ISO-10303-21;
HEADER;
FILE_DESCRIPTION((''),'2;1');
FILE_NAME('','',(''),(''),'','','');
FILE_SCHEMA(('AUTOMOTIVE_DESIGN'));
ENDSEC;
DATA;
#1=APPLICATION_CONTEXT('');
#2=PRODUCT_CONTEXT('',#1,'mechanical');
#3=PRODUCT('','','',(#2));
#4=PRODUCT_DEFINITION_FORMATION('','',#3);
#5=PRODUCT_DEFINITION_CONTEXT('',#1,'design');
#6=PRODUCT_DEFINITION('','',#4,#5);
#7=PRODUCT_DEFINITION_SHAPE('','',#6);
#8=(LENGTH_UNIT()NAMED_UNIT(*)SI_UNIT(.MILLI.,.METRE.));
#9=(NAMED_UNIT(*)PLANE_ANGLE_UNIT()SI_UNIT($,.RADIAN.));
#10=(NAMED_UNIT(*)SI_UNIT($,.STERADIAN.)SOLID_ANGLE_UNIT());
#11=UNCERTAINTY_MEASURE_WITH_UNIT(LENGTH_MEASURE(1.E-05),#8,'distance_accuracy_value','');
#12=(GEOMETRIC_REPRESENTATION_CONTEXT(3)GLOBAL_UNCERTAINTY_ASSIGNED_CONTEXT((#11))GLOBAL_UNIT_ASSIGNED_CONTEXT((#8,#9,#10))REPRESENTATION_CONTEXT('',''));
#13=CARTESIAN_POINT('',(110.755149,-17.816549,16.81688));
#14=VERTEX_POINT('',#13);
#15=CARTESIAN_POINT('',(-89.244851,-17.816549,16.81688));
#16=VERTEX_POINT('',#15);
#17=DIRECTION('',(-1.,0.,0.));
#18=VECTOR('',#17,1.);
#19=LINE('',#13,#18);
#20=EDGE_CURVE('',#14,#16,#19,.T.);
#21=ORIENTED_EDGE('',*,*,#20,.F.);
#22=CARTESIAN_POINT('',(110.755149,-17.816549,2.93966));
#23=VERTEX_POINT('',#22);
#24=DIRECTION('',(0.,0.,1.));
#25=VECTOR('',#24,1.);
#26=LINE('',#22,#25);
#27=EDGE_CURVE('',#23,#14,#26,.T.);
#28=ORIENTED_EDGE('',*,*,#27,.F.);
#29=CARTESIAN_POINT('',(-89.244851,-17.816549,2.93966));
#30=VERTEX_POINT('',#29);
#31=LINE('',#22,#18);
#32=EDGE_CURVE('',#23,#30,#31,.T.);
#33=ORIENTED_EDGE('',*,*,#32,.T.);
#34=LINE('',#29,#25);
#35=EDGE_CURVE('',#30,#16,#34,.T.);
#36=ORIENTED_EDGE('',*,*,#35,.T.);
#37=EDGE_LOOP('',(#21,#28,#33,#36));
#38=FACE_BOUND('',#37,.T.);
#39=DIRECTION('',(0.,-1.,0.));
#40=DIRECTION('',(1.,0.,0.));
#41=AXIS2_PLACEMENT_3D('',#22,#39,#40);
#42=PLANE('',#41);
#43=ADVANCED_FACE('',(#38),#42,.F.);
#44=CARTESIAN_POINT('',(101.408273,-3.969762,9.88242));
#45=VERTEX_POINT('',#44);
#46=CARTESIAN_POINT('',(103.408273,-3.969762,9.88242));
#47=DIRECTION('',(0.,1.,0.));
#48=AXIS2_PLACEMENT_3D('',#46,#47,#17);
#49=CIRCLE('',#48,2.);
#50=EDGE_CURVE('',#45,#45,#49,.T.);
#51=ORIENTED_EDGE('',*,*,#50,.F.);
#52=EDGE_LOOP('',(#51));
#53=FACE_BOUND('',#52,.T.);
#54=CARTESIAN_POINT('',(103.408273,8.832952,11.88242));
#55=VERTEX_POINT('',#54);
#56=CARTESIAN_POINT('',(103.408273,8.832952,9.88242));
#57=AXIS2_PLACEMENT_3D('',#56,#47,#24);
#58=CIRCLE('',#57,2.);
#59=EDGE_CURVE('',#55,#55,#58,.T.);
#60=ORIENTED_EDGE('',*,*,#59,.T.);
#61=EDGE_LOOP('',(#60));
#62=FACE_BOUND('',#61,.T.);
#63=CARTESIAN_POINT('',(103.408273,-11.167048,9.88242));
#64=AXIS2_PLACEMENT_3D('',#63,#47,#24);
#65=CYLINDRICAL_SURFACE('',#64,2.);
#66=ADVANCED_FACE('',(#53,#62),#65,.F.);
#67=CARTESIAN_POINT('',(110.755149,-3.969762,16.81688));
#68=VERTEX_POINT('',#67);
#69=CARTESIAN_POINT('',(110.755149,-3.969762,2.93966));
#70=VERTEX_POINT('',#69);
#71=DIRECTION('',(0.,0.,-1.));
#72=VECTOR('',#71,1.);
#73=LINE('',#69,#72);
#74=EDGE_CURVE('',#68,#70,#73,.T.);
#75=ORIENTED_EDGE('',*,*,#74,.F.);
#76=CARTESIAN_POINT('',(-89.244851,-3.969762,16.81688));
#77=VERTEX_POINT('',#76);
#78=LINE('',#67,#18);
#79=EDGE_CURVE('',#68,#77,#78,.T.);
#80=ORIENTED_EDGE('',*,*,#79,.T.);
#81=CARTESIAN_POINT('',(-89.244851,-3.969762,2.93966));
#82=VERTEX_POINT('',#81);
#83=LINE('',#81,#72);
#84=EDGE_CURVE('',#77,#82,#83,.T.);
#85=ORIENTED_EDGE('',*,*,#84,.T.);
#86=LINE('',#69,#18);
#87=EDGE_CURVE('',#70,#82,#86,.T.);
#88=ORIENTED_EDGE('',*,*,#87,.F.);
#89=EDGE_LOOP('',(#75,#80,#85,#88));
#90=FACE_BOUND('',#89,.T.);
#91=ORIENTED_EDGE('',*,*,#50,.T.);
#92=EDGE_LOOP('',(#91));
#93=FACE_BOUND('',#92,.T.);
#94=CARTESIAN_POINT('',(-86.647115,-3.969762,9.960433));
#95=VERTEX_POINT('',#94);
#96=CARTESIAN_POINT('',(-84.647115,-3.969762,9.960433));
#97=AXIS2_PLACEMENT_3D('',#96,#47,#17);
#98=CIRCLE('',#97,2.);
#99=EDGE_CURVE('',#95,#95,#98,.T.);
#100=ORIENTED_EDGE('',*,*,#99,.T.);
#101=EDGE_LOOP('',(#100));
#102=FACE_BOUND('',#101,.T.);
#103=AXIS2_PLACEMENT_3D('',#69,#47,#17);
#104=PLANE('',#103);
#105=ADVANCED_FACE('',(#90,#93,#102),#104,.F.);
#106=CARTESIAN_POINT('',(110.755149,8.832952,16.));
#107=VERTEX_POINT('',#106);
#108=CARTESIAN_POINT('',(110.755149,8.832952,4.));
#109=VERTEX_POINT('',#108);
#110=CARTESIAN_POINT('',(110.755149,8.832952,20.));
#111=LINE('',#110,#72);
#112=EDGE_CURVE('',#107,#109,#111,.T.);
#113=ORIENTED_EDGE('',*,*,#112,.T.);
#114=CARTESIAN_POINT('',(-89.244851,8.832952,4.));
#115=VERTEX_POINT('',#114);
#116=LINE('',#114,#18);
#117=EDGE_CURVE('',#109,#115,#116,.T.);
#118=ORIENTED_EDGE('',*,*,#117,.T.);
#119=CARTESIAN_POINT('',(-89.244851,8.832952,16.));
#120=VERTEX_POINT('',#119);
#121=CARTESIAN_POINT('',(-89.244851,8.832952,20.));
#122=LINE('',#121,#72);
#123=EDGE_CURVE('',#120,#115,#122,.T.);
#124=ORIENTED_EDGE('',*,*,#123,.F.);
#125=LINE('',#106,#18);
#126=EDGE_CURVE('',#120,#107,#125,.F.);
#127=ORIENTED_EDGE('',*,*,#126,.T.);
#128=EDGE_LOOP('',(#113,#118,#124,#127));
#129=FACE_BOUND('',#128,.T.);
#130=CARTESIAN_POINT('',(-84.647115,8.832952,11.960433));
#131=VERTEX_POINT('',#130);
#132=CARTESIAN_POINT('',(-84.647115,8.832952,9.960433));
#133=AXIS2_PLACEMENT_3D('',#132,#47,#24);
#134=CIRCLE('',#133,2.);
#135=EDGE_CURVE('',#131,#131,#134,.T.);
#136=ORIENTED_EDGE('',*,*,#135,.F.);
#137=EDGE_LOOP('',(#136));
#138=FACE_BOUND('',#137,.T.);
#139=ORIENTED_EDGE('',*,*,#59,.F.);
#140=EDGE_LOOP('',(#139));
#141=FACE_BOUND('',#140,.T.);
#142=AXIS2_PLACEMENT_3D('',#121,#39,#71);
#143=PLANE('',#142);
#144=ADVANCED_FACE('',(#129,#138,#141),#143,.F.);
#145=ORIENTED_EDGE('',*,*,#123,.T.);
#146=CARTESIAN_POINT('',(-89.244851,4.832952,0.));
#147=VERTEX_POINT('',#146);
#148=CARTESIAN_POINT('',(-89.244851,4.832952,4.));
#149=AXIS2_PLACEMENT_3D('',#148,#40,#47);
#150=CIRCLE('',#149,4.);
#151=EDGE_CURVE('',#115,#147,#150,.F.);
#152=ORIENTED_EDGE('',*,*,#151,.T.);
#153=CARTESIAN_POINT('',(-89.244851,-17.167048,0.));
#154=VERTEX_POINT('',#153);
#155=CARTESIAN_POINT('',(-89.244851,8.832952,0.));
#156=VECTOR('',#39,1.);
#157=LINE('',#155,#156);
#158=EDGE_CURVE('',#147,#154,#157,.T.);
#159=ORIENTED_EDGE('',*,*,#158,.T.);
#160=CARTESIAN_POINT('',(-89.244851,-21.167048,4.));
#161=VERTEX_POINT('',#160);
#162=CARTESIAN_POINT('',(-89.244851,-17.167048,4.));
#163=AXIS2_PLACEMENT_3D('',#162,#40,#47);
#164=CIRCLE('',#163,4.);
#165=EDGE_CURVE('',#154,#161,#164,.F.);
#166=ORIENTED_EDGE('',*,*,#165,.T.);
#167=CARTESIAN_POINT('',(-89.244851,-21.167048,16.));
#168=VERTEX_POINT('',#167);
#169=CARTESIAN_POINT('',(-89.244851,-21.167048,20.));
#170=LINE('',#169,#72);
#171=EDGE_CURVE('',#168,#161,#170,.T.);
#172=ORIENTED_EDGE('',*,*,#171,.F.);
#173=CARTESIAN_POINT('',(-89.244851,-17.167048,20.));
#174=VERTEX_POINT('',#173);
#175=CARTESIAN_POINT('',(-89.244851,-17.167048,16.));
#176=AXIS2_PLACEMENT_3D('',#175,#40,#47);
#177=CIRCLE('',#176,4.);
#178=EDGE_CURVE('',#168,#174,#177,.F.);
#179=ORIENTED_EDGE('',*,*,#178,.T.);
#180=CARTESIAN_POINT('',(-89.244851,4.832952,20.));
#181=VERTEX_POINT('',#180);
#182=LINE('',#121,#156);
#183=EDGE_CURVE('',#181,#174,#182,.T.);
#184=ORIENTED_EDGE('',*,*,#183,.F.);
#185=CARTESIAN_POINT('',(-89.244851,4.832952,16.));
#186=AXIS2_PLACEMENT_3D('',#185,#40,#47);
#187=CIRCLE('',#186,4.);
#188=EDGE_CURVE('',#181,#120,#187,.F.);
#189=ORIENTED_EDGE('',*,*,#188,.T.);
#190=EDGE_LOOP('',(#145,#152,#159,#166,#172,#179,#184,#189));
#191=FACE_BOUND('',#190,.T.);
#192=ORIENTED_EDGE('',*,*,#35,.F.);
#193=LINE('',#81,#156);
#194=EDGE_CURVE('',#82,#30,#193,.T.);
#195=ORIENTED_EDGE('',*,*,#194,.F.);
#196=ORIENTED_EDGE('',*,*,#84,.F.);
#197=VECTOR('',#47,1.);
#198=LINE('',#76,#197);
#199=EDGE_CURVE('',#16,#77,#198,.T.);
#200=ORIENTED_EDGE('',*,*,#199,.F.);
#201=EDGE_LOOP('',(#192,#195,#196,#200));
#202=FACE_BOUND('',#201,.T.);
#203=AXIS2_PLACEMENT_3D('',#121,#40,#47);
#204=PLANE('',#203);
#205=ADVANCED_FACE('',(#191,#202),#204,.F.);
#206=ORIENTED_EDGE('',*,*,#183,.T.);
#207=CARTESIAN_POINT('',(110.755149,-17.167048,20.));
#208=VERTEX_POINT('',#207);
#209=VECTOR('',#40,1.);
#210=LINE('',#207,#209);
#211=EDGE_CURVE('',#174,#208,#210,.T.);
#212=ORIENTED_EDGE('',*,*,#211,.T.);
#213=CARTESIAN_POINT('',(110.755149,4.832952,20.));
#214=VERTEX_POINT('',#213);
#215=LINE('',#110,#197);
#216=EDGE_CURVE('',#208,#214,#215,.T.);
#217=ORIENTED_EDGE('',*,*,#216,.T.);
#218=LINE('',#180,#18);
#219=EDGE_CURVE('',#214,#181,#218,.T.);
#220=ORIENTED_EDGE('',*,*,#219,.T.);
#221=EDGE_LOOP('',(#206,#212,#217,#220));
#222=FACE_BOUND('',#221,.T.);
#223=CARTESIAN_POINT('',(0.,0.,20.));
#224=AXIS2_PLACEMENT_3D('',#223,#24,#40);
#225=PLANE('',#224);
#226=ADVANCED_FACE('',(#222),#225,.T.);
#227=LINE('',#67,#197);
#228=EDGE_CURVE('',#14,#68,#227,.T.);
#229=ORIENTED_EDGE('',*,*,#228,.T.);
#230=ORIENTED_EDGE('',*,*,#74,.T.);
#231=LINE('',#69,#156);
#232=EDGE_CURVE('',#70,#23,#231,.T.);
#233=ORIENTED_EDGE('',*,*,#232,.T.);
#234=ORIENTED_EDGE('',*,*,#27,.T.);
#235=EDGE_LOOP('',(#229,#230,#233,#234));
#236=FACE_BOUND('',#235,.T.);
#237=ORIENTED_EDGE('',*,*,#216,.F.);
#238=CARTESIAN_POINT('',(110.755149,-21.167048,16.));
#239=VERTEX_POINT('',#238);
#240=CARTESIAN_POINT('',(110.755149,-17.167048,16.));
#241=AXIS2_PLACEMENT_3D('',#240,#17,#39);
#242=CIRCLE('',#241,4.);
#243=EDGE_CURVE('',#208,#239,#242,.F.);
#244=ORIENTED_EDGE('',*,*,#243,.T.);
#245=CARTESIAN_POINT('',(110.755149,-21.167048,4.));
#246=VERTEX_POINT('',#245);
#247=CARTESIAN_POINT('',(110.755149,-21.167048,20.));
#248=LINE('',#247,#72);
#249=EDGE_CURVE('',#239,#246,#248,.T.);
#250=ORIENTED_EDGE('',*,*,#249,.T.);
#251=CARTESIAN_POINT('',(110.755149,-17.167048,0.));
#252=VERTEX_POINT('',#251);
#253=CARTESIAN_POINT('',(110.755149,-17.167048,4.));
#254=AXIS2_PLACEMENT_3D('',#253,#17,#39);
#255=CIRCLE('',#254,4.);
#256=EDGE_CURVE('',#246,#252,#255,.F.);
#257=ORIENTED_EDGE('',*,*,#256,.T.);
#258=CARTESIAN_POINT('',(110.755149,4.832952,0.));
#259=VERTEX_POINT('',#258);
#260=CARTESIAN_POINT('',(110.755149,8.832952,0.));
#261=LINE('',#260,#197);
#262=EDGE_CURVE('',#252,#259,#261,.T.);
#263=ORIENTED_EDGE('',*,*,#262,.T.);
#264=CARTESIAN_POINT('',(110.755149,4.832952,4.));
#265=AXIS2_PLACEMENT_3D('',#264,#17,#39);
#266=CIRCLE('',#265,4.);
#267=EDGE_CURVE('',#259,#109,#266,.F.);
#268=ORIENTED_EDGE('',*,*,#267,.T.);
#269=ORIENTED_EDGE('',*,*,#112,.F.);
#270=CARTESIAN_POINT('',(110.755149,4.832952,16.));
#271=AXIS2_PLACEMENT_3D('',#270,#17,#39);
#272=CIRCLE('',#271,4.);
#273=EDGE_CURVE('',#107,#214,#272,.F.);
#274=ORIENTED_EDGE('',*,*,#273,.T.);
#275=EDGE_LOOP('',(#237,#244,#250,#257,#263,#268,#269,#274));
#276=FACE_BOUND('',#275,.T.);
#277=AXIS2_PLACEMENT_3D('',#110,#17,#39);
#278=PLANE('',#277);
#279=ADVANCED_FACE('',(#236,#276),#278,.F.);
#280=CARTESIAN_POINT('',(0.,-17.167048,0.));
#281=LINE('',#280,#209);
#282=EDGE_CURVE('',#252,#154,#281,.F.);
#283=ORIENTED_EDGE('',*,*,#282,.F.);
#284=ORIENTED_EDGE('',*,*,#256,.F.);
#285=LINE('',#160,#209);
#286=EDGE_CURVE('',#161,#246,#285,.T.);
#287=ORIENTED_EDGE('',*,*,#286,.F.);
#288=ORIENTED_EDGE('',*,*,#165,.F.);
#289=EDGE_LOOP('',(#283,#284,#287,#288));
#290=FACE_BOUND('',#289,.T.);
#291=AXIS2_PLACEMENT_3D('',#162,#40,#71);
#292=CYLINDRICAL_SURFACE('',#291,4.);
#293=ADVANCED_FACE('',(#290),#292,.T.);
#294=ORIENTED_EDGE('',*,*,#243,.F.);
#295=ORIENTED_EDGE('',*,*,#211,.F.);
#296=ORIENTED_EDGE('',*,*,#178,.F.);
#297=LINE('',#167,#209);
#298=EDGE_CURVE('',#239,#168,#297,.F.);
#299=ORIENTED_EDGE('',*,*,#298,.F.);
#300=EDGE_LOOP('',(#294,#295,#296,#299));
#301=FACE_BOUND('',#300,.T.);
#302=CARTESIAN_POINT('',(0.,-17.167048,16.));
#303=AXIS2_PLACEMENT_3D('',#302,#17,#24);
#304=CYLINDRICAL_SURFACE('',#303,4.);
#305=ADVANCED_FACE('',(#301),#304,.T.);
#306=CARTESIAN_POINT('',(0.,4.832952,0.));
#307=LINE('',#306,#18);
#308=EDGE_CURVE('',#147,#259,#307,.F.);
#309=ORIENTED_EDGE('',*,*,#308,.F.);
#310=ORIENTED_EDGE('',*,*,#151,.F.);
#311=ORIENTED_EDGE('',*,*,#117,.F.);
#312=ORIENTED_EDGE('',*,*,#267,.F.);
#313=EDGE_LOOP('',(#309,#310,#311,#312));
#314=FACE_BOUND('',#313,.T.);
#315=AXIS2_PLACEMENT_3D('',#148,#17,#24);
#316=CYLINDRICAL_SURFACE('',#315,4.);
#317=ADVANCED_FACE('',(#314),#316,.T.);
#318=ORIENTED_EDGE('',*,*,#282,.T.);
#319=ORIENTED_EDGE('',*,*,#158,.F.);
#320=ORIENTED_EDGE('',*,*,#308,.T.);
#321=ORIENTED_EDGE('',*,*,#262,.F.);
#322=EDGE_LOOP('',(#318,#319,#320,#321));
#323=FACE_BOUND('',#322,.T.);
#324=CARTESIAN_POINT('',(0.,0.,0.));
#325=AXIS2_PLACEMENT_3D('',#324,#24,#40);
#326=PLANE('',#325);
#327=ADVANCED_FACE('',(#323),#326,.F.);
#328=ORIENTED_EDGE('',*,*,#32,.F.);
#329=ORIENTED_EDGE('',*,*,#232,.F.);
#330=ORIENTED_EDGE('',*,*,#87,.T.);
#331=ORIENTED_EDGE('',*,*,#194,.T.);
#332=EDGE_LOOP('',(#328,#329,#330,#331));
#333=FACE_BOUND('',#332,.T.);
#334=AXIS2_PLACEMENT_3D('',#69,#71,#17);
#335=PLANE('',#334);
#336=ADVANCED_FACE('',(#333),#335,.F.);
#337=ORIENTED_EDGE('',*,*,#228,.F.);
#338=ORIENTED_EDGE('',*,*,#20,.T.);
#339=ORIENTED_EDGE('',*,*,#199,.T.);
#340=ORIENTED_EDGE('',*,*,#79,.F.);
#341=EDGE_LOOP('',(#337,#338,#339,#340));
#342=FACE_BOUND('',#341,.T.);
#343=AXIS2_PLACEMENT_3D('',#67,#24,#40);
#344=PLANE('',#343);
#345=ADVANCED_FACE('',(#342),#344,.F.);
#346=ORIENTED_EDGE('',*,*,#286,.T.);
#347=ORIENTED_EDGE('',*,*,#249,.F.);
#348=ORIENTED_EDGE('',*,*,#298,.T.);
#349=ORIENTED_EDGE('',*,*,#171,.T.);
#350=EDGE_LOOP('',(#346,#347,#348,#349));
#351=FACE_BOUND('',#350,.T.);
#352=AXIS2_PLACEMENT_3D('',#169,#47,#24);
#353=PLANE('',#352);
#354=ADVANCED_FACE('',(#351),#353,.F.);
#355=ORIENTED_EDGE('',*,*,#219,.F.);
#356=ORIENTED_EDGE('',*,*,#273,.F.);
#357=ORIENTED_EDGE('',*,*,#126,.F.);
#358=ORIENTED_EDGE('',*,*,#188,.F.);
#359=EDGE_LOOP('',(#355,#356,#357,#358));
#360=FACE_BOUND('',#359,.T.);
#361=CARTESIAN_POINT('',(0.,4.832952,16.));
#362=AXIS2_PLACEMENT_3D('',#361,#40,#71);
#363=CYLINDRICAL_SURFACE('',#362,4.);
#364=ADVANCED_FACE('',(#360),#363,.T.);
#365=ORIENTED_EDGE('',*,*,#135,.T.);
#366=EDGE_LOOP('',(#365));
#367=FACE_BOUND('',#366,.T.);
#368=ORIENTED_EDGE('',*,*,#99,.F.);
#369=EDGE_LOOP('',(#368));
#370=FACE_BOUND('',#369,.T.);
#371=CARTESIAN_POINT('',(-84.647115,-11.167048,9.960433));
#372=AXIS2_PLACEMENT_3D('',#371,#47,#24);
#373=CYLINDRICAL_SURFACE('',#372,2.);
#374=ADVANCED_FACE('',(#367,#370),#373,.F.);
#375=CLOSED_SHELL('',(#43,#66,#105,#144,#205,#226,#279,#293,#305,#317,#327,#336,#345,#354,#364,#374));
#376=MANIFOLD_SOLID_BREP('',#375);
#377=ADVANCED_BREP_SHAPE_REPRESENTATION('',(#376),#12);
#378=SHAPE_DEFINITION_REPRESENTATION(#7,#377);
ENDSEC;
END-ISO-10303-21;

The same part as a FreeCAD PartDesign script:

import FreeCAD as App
import Part
import Sketcher
from FreeCAD import Vector
Q = App.Units.Quantity


def edges_at(feature, points):
    """Names of the edges that pass closest to the given points."""
    edges = feature.Shape.Edges
    near = lambda p: min(range(len(edges)), key=lambda i: edges[i].distToShape(Part.Vertex(*p))[0])
    return sorted({f"Edge{near(p) + 1}" for p in points})


def add_polygon(sketch, points):
    """Adds a closed chain of lines whose ends are joined by coincident constraints."""
    first, n = sketch.GeometryCount, len(points)
    for a, b in zip(points, points[1:] + points[:1]):
        sketch.addGeometry(Part.LineSegment(App.Vector(*a, 0), App.Vector(*b, 0)), False)
    for i in range(n):
        sketch.addConstraint(Sketcher.Constraint("Coincident", first + i, 2, first + (i + 1) % n, 1))

doc = App.newDocument("Part")
body = doc.addObject("PartDesign::Body", "Body")

# Sketch on XY plane
sketch1 = body.newObject("Sketcher::SketchObject", "Sketch")
sketch1.AttachmentSupport = (doc.getObject("XY_Plane"), [""])
sketch1.MapMode = "FlatFace"
add_polygon(sketch1, [(-89, 9), (-89, -21), (111, -21), (111, 9)])  # lines 0-3
sketch1.addConstraint([
    Sketcher.Constraint("Vertical", 0),
    Sketcher.Constraint("Horizontal", 1),
    Sketcher.Constraint("Vertical", 2),
    Sketcher.Constraint("Horizontal", 3),
    Sketcher.Constraint("DistanceX", 1, 1, 1, 2, Q("200 mm")),
    Sketcher.Constraint("DistanceY", 0, 2, 0, 1, Q("30 mm")),
    Sketcher.Constraint("DistanceX", 0, 2, -1, 1, Q("89.244851 mm")),
    Sketcher.Constraint("DistanceY", 0, 2, -1, 1, Q("21.167048 mm")),
])
pad1 = body.newObject("PartDesign::Pad", "Pad")
pad1.Profile = sketch1
pad1.Length = 20
doc.recompute()

fillet = body.newObject("PartDesign::Fillet", "Fillet")
fillet.Base = (pad1, edges_at(pad1, [
    (10.755, 8.833, 20),
    (10.755, 8.833, 0),
    (10.755, -21.167, 0),
    (10.755, -21.167, 20),
]))
fillet.Radius = 4

# Sketch on YZ plane
sketch2 = body.newObject("Sketcher::SketchObject", "Sketch001")
sketch2.AttachmentSupport = (doc.getObject("YZ_Plane"), [""])
sketch2.MapMode = "FlatFace"
sketch2.AttachmentOffset = App.Placement(Vector(0, 0, -89.244851), App.Rotation())
add_polygon(sketch2, [(-4, 3), (-18, 3), (-18, 17), (-4, 17)])  # lines 0-3
sketch2.addConstraint([
    Sketcher.Constraint("Horizontal", 0),
    Sketcher.Constraint("Vertical", 1),
    Sketcher.Constraint("Horizontal", 2),
    Sketcher.Constraint("Vertical", 3),
    Sketcher.Constraint("DistanceY", 1, 1, 1, 2, Q("13.877219 mm")),
    Sketcher.Constraint("DistanceX", 0, 2, 0, 1, Q("13.846787 mm")),
    Sketcher.Constraint("DistanceX", 0, 2, -1, 1, Q("17.816549 mm")),
    Sketcher.Constraint("DistanceY", -1, 1, 0, 2, Q("2.93966 mm")),
])
pocket1 = body.newObject("PartDesign::Pocket", "Pocket")
pocket1.Profile = sketch2
pocket1.Length = 200
pocket1.Reversed = True

# Sketch on XZ plane
sketch3 = body.newObject("Sketcher::SketchObject", "Sketch002")
sketch3.AttachmentSupport = (doc.getObject("XZ_Plane"), [""])
sketch3.MapMode = "FlatFace"
sketch3.AttachmentOffset = App.Placement(Vector(0, 0, -8.832952), App.Rotation())
sketch3.addGeometry(Part.Circle(Vector(-84.6, 10, 0), Vector(0, 0, 1), 2), False)
sketch3.addConstraint([
    Sketcher.Constraint("Diameter", 0, Q("4 mm")),
    Sketcher.Constraint("DistanceX", 0, 3, -1, 1, Q("84.647115 mm")),
    Sketcher.Constraint("DistanceY", -1, 1, 0, 3, Q("9.960433 mm")),
])
pocket2 = body.newObject("PartDesign::Pocket", "Pocket001")
pocket2.Profile = sketch3
pocket2.Length = 20
pocket2.Reversed = True

# Sketch on XZ plane
sketch4 = body.newObject("Sketcher::SketchObject", "Sketch003")
sketch4.AttachmentSupport = (doc.getObject("XZ_Plane"), [""])
sketch4.MapMode = "FlatFace"
sketch4.AttachmentOffset = App.Placement(Vector(0, 0, -8.832952), App.Rotation())
sketch4.addGeometry(Part.Circle(Vector(103.4, 9.9, 0), Vector(0, 0, 1), 2), False)
sketch4.addConstraint([
    Sketcher.Constraint("Diameter", 0, Q("4 mm")),
    Sketcher.Constraint("DistanceY", -1, 1, 0, 3, Q("9.88242 mm")),
    Sketcher.Constraint("DistanceX", -1, 1, 0, 3, Q("103.408273 mm")),
])
pocket3 = body.newObject("PartDesign::Pocket", "Pocket002")
pocket3.Profile = sketch4
pocket3.Length = 20
pocket3.Reversed = True

doc.recompute()
